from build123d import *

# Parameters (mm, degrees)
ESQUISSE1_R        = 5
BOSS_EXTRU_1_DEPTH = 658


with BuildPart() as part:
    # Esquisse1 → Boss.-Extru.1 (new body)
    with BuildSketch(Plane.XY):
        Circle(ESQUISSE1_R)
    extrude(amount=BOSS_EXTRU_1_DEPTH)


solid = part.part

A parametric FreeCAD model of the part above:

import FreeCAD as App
import Part
import Sketcher
Q = App.Units.Quantity

doc = App.newDocument("Part")
params = doc.addObject("Spreadsheet::Sheet", "Params")
for row, (alias, value) in enumerate([
    ("sketch1_diameter", "10 mm"),
    ("pad1_length", "658 mm"),
], start=1):
    params.set(f"A{row}", alias)
    params.set(f"B{row}", "=" + value)
    params.setAlias(f"B{row}", alias)

body = doc.addObject("PartDesign::Body", "Body")

sketch1 = doc.addObject("Sketcher::SketchObject", "Sketch")
body.addObject(sketch1)
sketch1.AttachmentSupport = (doc.XY_Plane, [""])
sketch1.MapMode = "FlatFace"
sketch1.addGeometry(Part.Circle(App.Vector(0, 0, 0), App.Vector(0, 0, 1), 5), False)
sketch1.addConstraint([
    Sketcher.Constraint("Coincident", 0, 3, -1, 1),
    Sketcher.Constraint("Diameter", 0, Q("10 mm")),
])
sketch1.setExpression("Constraints[1]", "Params.sketch1_diameter")
pad1 = doc.addObject("PartDesign::Pad", "Pad")
body.addObject(pad1)
pad1.Profile = sketch1
pad1.setExpression("Length", "Params.pad1_length")

doc.recompute()
